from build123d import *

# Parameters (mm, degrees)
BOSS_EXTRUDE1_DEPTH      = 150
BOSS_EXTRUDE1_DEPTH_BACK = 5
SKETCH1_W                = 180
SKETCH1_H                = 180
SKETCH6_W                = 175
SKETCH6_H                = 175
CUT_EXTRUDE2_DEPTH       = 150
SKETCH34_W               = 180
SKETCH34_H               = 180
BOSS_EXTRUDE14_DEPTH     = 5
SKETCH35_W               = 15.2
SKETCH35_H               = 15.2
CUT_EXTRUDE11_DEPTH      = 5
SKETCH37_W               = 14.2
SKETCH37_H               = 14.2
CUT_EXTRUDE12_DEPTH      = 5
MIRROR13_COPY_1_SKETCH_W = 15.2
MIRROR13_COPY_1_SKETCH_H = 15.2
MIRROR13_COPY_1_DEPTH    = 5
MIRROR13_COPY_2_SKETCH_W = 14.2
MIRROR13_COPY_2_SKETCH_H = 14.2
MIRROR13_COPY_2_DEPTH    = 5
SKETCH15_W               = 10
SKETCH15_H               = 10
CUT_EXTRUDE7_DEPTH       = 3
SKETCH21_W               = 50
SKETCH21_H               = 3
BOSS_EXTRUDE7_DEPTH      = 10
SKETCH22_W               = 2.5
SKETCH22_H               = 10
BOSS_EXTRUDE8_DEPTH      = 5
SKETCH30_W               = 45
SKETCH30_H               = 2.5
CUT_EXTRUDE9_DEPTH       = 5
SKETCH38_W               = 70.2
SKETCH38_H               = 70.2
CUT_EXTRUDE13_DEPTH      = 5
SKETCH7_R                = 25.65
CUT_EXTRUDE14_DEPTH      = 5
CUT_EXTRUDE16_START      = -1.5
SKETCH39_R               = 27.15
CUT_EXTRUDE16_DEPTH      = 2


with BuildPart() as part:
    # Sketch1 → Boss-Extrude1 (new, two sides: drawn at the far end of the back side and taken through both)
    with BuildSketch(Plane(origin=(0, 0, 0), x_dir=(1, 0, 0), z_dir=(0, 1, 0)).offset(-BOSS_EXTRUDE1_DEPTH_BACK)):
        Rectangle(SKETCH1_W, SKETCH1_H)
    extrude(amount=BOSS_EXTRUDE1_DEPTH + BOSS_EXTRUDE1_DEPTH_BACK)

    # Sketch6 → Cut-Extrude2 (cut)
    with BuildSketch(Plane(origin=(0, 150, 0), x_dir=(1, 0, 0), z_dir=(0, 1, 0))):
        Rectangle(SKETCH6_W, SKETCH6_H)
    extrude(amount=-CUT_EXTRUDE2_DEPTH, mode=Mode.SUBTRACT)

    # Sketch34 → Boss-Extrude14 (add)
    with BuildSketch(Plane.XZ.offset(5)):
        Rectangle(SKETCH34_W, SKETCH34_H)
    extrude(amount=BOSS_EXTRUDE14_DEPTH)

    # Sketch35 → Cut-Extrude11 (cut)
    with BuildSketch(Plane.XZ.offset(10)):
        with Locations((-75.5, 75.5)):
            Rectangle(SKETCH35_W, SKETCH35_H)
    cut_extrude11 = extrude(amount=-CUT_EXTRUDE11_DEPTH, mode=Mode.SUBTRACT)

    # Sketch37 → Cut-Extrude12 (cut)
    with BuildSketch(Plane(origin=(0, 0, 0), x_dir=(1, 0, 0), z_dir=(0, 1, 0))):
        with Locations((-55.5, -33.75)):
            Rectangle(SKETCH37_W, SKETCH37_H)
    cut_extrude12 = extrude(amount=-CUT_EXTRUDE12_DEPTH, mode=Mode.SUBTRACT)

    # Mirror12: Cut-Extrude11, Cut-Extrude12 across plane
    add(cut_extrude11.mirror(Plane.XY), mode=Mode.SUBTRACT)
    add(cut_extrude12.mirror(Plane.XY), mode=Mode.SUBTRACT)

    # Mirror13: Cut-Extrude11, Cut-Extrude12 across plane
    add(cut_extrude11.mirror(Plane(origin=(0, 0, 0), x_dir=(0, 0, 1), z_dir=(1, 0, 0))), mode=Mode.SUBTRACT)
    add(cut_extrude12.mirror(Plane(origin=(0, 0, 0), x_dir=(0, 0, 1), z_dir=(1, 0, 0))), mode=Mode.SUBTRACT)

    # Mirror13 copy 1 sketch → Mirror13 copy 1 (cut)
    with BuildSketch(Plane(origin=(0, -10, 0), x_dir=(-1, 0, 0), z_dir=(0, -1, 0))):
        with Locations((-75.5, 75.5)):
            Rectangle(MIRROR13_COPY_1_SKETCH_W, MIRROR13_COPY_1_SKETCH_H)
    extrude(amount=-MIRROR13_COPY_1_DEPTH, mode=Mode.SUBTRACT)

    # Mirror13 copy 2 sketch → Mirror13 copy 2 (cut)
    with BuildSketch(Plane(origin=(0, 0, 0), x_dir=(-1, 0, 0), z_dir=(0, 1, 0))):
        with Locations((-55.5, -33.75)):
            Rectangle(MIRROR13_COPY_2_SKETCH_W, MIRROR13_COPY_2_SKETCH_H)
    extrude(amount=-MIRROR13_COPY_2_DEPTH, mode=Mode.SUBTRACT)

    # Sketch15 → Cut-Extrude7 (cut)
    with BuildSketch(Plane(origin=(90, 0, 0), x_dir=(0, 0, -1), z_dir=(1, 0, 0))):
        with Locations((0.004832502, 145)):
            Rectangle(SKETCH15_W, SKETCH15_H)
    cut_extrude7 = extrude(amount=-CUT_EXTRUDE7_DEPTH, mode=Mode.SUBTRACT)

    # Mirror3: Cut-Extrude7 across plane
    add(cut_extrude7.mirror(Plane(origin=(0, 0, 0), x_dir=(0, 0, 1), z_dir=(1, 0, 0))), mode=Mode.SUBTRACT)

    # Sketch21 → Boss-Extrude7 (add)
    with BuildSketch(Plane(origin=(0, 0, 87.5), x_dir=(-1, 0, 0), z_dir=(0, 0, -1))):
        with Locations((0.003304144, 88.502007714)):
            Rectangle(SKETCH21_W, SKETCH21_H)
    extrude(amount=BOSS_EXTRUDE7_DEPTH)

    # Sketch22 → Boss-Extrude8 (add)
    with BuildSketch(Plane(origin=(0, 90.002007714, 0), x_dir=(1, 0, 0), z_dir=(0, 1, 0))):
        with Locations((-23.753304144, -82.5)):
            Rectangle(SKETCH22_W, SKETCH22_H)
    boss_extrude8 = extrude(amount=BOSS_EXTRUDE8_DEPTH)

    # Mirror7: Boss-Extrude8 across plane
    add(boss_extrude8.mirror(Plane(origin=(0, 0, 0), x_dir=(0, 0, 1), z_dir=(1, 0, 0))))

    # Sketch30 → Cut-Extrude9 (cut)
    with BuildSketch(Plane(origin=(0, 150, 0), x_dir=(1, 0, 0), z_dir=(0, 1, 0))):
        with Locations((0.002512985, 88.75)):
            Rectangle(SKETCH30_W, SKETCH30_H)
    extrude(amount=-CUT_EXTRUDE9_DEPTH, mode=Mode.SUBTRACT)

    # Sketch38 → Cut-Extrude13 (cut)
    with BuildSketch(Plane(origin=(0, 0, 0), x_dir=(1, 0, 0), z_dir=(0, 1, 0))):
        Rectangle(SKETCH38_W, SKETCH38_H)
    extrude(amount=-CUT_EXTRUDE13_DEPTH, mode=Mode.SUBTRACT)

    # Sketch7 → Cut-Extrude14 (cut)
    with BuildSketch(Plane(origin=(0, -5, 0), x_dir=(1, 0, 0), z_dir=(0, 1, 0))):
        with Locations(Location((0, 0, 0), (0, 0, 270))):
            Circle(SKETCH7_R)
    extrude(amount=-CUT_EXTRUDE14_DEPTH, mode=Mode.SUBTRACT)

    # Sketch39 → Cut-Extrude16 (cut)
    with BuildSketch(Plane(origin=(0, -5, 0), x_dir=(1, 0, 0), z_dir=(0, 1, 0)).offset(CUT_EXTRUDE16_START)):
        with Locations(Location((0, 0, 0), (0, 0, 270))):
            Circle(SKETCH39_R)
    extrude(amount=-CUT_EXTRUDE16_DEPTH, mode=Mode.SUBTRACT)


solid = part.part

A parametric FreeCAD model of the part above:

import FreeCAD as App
import Part
import Sketcher
from FreeCAD import Vector


def add_polygon(sketch, points):
    """Adds a closed chain of lines whose ends are joined by coincident constraints."""
    first, n = sketch.GeometryCount, len(points)
    for a, b in zip(points, points[1:] + points[:1]):
        sketch.addGeometry(Part.LineSegment(App.Vector(*a, 0), App.Vector(*b, 0)), False)
    for i in range(n):
        sketch.addConstraint(Sketcher.Constraint("Coincident", first + i, 2, first + (i + 1) % n, 1))

doc = App.newDocument("Part")
body = doc.addObject("PartDesign::Body", "Body")

sketch1 = body.newObject("Sketcher::SketchObject", "Sketch")
sketch1.AttachmentSupport = (doc.getObject("XZ_Plane"), [""])
sketch1.MapMode = "FlatFace"
add_polygon(sketch1, [(-90, -90), (-90, 90), (90, 90), (90, -90)])
sketch1.addConstraint(Sketcher.Constraint("Vertical", 0))
sketch1.addConstraint(Sketcher.Constraint("Horizontal", 1))
sketch1.addConstraint(Sketcher.Constraint("Vertical", 2))
sketch1.addConstraint(Sketcher.Constraint("Horizontal", 3))
sketch1.addConstraint(Sketcher.Constraint("Symmetric", 0, 2, 2, 2, -1, 1))
sketch1.addConstraint(Sketcher.Constraint("Equal", 3, 0))
sketch1.addConstraint(Sketcher.Constraint("DistanceX", 1, 1, 1, 2, 180.0))
pad1 = body.newObject("PartDesign::Pad", "Pad")
pad1.Profile = sketch1
pad1.Type = "TwoLengths"
pad1.Length = 150
pad1.Length2 = 5
pad1.Reversed = True

sketch2 = body.newObject("Sketcher::SketchObject", "Sketch001")
sketch2.AttachmentSupport = (doc.getObject("XZ_Plane"), [""])
sketch2.MapMode = "FlatFace"
sketch2.AttachmentOffset = App.Placement(Vector(0, 0, -150), App.Rotation())
add_polygon(sketch2, [(-88, -88), (-88, 88), (88, 88), (88, -88)])
sketch2.addConstraint(Sketcher.Constraint("Vertical", 0))
sketch2.addConstraint(Sketcher.Constraint("Horizontal", 1))
sketch2.addConstraint(Sketcher.Constraint("Vertical", 2))
sketch2.addConstraint(Sketcher.Constraint("Horizontal", 3))
sketch2.addConstraint(Sketcher.Constraint("Symmetric", 0, 2, 2, 2, -1, 1))
sketch2.addConstraint(Sketcher.Constraint("Equal", 3, 0))
sketch2.addConstraint(Sketcher.Constraint("DistanceX", 1, 1, 1, 2, 175.0))
pocket1 = body.newObject("PartDesign::Pocket", "Pocket")
pocket1.Profile = sketch2
pocket1.Length = 150
pocket1.Reversed = True

sketch3 = body.newObject("Sketcher::SketchObject", "Sketch002")
sketch3.AttachmentSupport = (doc.getObject("XZ_Plane"), [""])
sketch3.MapMode = "FlatFace"
sketch3.AttachmentOffset = App.Placement(Vector(0, 0, 5), App.Rotation())
add_polygon(sketch3, [(-90, 90), (-90, -90), (90, -90), (90, 90)])
sketch3.addConstraint(Sketcher.Constraint("Vertical", 0))
sketch3.addConstraint(Sketcher.Constraint("Horizontal", 1))
sketch3.addConstraint(Sketcher.Constraint("Vertical", 2))
sketch3.addConstraint(Sketcher.Constraint("Horizontal", 3))
sketch3.addConstraint(Sketcher.Constraint("Symmetric", 0, 2, 2, 2, -1, 1))
sketch3.addConstraint(Sketcher.Constraint("Equal", 3, 0))
sketch3.addConstraint(Sketcher.Constraint("DistanceX", 1, 1, 1, 2, 180.0))
pad2 = body.newObject("PartDesign::Pad", "Pad001")
pad2.Profile = sketch3
pad2.Length = 5

sketch4 = body.newObject("Sketcher::SketchObject", "Sketch003")
sketch4.AttachmentSupport = (doc.getObject("XZ_Plane"), [""])
sketch4.MapMode = "FlatFace"
sketch4.AttachmentOffset = App.Placement(Vector(0, 0, 10), App.Rotation())
add_polygon(sketch4, [(-83, 83), (-83, 68), (-68, 68), (-68, 83)])
sketch4.addConstraint(Sketcher.Constraint("Vertical", 0))
sketch4.addConstraint(Sketcher.Constraint("Horizontal", 1))
sketch4.addConstraint(Sketcher.Constraint("Vertical", 2))
sketch4.addConstraint(Sketcher.Constraint("Horizontal", 3))
sketch4.addConstraint(Sketcher.Constraint("Equal", 3, 0))
sketch4.addConstraint(Sketcher.Constraint("DistanceX", 1, 1, 1, 2, 15.2))
sketch4.addConstraint(Sketcher.Constraint("DistanceX", 0, 2, -1, 1, 83.1))
sketch4.addConstraint(Sketcher.Constraint("DistanceY", -1, 1, 0, 2, 67.9))
pocket2 = body.newObject("PartDesign::Pocket", "Pocket001")
pocket2.Profile = sketch4
pocket2.Length = 5

sketch5 = body.newObject("Sketcher::SketchObject", "Sketch004")
sketch5.AttachmentSupport = (doc.getObject("XZ_Plane"), [""])
sketch5.MapMode = "FlatFace"
add_polygon(sketch5, [(-63, 27), (-63, 41), (-48, 41), (-48, 27)])
sketch5.addConstraint(Sketcher.Constraint("Vertical", 0))
sketch5.addConstraint(Sketcher.Constraint("Horizontal", 1))
sketch5.addConstraint(Sketcher.Constraint("Vertical", 2))
sketch5.addConstraint(Sketcher.Constraint("Horizontal", 3))
sketch5.addConstraint(Sketcher.Constraint("Equal", 3, 0))
sketch5.addConstraint(Sketcher.Constraint("DistanceX", 1, 1, 1, 2, 14.2))
sketch5.addConstraint(Sketcher.Constraint("DistanceX", 0, 2, -1, 1, 62.6))
sketch5.addConstraint(Sketcher.Constraint("DistanceY", -1, 1, 0, 2, 40.85))
pocket3 = body.newObject("PartDesign::Pocket", "Pocket002")
pocket3.Profile = sketch5
pocket3.Length = 5
pocket3.Reversed = True
doc.recompute()

mirrored = body.newObject("PartDesign::Mirrored", "Mirrored")
mirrored.Originals = [pocket2, pocket3]
mirrored.MirrorPlane = (doc.getObject("XY_Plane"), [""])
body.Tip = mirrored
doc.recompute()

mirrored2 = body.newObject("PartDesign::Mirrored", "Mirrored001")
mirrored2.Originals = [pocket2, pocket3]
mirrored2.MirrorPlane = (doc.getObject("YZ_Plane"), [""])
body.Tip = mirrored2

sketch6 = body.newObject("Sketcher::SketchObject", "Sketch005")
sketch6.AttachmentSupport = (doc.getObject("XZ_Plane"), [""])
sketch6.MapMode = "FlatFace"
sketch6.AttachmentOffset = App.Placement(Vector(0, 0, 10), App.Rotation())
add_polygon(sketch6, [(83, -83), (83, -68), (68, -68), (68, -83)])
sketch6.addConstraint(Sketcher.Constraint("Vertical", 0))
sketch6.addConstraint(Sketcher.Constraint("Horizontal", 1))
sketch6.addConstraint(Sketcher.Constraint("Vertical", 2))
sketch6.addConstraint(Sketcher.Constraint("Horizontal", 3))
sketch6.addConstraint(Sketcher.Constraint("Equal", 3, 0))
sketch6.addConstraint(Sketcher.Constraint("DistanceX", 1, 2, 1, 1, 15.2))
sketch6.addConstraint(Sketcher.Constraint("DistanceX", -1, 1, 0, 2, 83.1))
sketch6.addConstraint(Sketcher.Constraint("DistanceY", 0, 2, -1, 1, 67.9))
pocket4 = body.newObject("PartDesign::Pocket", "Pocket003")
pocket4.Profile = sketch6
pocket4.Length = 5

sketch7 = body.newObject("Sketcher::SketchObject", "Sketch006")
sketch7.AttachmentSupport = (doc.getObject("XZ_Plane"), [""])
sketch7.MapMode = "FlatFace"
add_polygon(sketch7, [(63, -27), (63, -41), (48, -41), (48, -27)])
sketch7.addConstraint(Sketcher.Constraint("Vertical", 0))
sketch7.addConstraint(Sketcher.Constraint("Horizontal", 1))
sketch7.addConstraint(Sketcher.Constraint("Vertical", 2))
sketch7.addConstraint(Sketcher.Constraint("Horizontal", 3))
sketch7.addConstraint(Sketcher.Constraint("Equal", 3, 0))
sketch7.addConstraint(Sketcher.Constraint("DistanceX", 1, 2, 1, 1, 14.2))
sketch7.addConstraint(Sketcher.Constraint("DistanceX", -1, 1, 0, 2, 62.6))
sketch7.addConstraint(Sketcher.Constraint("DistanceY", 0, 2, -1, 1, 40.85))
pocket5 = body.newObject("PartDesign::Pocket", "Pocket004")
pocket5.Profile = sketch7
pocket5.Length = 5
pocket5.Reversed = True

sketch8 = body.newObject("Sketcher::SketchObject", "Sketch007")
sketch8.AttachmentSupport = (doc.getObject("YZ_Plane"), [""])
sketch8.MapMode = "FlatFace"
sketch8.AttachmentOffset = App.Placement(Vector(0, 0, 90), App.Rotation())
add_polygon(sketch8, [(150, 5), (140, 5), (140, -5), (150, -5)])
sketch8.addConstraint(Sketcher.Constraint("Horizontal", 0))
sketch8.addConstraint(Sketcher.Constraint("Vertical", 1))
sketch8.addConstraint(Sketcher.Constraint("Horizontal", 2))
sketch8.addConstraint(Sketcher.Constraint("Vertical", 3))
sketch8.addConstraint(Sketcher.Constraint("Equal", 2, 1))
sketch8.addConstraint(Sketcher.Constraint("DistanceX", 0, 2, 0, 1, 10.0))
sketch8.addConstraint(Sketcher.Constraint("DistanceX", -1, 1, 0, 2, 140.0))
sketch8.addConstraint(Sketcher.Constraint("DistanceY", -1, 1, 0, 2, 4.995167))
pocket6 = body.newObject("PartDesign::Pocket", "Pocket005")
pocket6.Profile = sketch8
pocket6.Length = 3
doc.recompute()

mirrored3 = body.newObject("PartDesign::Mirrored", "Mirrored002")
mirrored3.Originals = [pocket6]
mirrored3.MirrorPlane = (doc.getObject("YZ_Plane"), [""])
body.Tip = mirrored3

sketch9 = body.newObject("Sketcher::SketchObject", "Sketch008")
sketch9.AttachmentSupport = (doc.getObject("XY_Plane"), [""])
sketch9.MapMode = "FlatFace"
sketch9.AttachmentOffset = App.Placement(Vector(0, 0, 87.5), App.Rotation())
add_polygon(sketch9, [(25, 90), (25, 87), (-25, 87), (-25, 90)])
sketch9.addConstraint(Sketcher.Constraint("Vertical", 0))
sketch9.addConstraint(Sketcher.Constraint("Horizontal", 1))
sketch9.addConstraint(Sketcher.Constraint("Vertical", 2))
sketch9.addConstraint(Sketcher.Constraint("Horizontal", 3))
sketch9.addConstraint(Sketcher.Constraint("DistanceX", 1, 2, 1, 1, 50.0))
sketch9.addConstraint(Sketcher.Constraint("DistanceY", 0, 2, 0, 1, 3.0))
sketch9.addConstraint(Sketcher.Constraint("DistanceX", -1, 1, 0, 2, 24.996696))
sketch9.addConstraint(Sketcher.Constraint("DistanceY", -1, 1, 0, 2, 87.002008))
pad3 = body.newObject("PartDesign::Pad", "Pad002")
pad3.Profile = sketch9
pad3.Length = 10
pad3.Reversed = True

sketch10 = body.newObject("Sketcher::SketchObject", "Sketch009")
sketch10.AttachmentSupport = (doc.getObject("XZ_Plane"), [""])
sketch10.MapMode = "FlatFace"
sketch10.AttachmentOffset = App.Placement(Vector(0, 0, -90.002008), App.Rotation())
add_polygon(sketch10, [(-25, 77.5), (-25, 87.5), (-22.5, 87.5), (-22.5, 77.5)])
sketch10.addConstraint(Sketcher.Constraint("Vertical", 0))
sketch10.addConstraint(Sketcher.Constraint("Horizontal", 1))
sketch10.addConstraint(Sketcher.Constraint("Vertical", 2))
sketch10.addConstraint(Sketcher.Constraint("Horizontal", 3))
sketch10.addConstraint(Sketcher.Constraint("DistanceY", 0, 1, 0, 2, 10.0))
sketch10.addConstraint(Sketcher.Constraint("DistanceX", 1, 1, 1, 2, 2.5))
sketch10.addConstraint(Sketcher.Constraint("DistanceY", -1, 1, 0, 2, 87.5))
sketch10.addConstraint(Sketcher.Constraint("DistanceX", 0, 2, -1, 1, 25.003304))
pad4 = body.newObject("PartDesign::Pad", "Pad003")
pad4.Profile = sketch10
pad4.Length = 5
pad4.Reversed = True
doc.recompute()

mirrored4 = body.newObject("PartDesign::Mirrored", "Mirrored003")
mirrored4.Originals = [pad4]
mirrored4.MirrorPlane = (doc.getObject("YZ_Plane"), [""])
body.Tip = mirrored4

sketch11 = body.newObject("Sketcher::SketchObject", "Sketch010")
sketch11.AttachmentSupport = (doc.getObject("XZ_Plane"), [""])
sketch11.MapMode = "FlatFace"
sketch11.AttachmentOffset = App.Placement(Vector(0, 0, -150), App.Rotation())
add_polygon(sketch11, [(-22.5, -90), (-22.5, -87.5), (22.5, -87.5), (22.5, -90)])
sketch11.addConstraint(Sketcher.Constraint("Vertical", 0))
sketch11.addConstraint(Sketcher.Constraint("Horizontal", 1))
sketch11.addConstraint(Sketcher.Constraint("Vertical", 2))
sketch11.addConstraint(Sketcher.Constraint("Horizontal", 3))
sketch11.addConstraint(Sketcher.Constraint("DistanceX", 1, 1, 1, 2, 45.0))
sketch11.addConstraint(Sketcher.Constraint("DistanceY", 0, 1, 0, 2, 2.5))
sketch11.addConstraint(Sketcher.Constraint("DistanceY", 2, 2, -1, 1, 90.0))
sketch11.addConstraint(Sketcher.Constraint("DistanceX", 0, 2, -1, 1, 22.497487))
pocket7 = body.newObject("PartDesign::Pocket", "Pocket006")
pocket7.Profile = sketch11
pocket7.Length = 5
pocket7.Reversed = True

sketch12 = body.newObject("Sketcher::SketchObject", "Sketch011")
sketch12.AttachmentSupport = (doc.getObject("XZ_Plane"), [""])
sketch12.MapMode = "FlatFace"
add_polygon(sketch12, [(-35, -35), (-35, 35), (35, 35), (35, -35)])
sketch12.addConstraint(Sketcher.Constraint("Vertical", 0))
sketch12.addConstraint(Sketcher.Constraint("Horizontal", 1))
sketch12.addConstraint(Sketcher.Constraint("Vertical", 2))
sketch12.addConstraint(Sketcher.Constraint("Horizontal", 3))
sketch12.addConstraint(Sketcher.Constraint("Symmetric", 0, 2, 2, 2, -1, 1))
sketch12.addConstraint(Sketcher.Constraint("Equal", 3, 0))
sketch12.addConstraint(Sketcher.Constraint("DistanceX", 1, 1, 1, 2, 70.2))
pocket8 = body.newObject("PartDesign::Pocket", "Pocket007")
pocket8.Profile = sketch12
pocket8.Length = 5
pocket8.Reversed = True

sketch13 = body.newObject("Sketcher::SketchObject", "Sketch012")
sketch13.AttachmentSupport = (doc.getObject("XZ_Plane"), [""])
sketch13.MapMode = "FlatFace"
sketch13.AttachmentOffset = App.Placement(Vector(0, 0, 5), App.Rotation())
sketch13.addGeometry(Part.Circle(Vector(0, 0, 0), Vector(0, 0, 1), 26), False)
sketch13.addConstraint(Sketcher.Constraint("Coincident", 0, 3, -1, 1))
sketch13.addConstraint(Sketcher.Constraint("Diameter", 0, 51.3))
pocket9 = body.newObject("PartDesign::Pocket", "Pocket008")
pocket9.Profile = sketch13
pocket9.Length = 5
pocket9.Reversed = True

sketch14 = body.newObject("Sketcher::SketchObject", "Sketch013")
sketch14.AttachmentSupport = (doc.getObject("XZ_Plane"), [""])
sketch14.MapMode = "FlatFace"
sketch14.AttachmentOffset = App.Placement(Vector(0, 0, 6.5), App.Rotation())
sketch14.addGeometry(Part.Circle(Vector(0, 0, 0), Vector(0, 0, 1), 27), False)
sketch14.addConstraint(Sketcher.Constraint("Coincident", 0, 3, -1, 1))
sketch14.addConstraint(Sketcher.Constraint("Diameter", 0, 54.3))
pocket10 = body.newObject("PartDesign::Pocket", "Pocket009")
pocket10.Profile = sketch14
pocket10.Length = 2
pocket10.Reversed = True

doc.recompute()
